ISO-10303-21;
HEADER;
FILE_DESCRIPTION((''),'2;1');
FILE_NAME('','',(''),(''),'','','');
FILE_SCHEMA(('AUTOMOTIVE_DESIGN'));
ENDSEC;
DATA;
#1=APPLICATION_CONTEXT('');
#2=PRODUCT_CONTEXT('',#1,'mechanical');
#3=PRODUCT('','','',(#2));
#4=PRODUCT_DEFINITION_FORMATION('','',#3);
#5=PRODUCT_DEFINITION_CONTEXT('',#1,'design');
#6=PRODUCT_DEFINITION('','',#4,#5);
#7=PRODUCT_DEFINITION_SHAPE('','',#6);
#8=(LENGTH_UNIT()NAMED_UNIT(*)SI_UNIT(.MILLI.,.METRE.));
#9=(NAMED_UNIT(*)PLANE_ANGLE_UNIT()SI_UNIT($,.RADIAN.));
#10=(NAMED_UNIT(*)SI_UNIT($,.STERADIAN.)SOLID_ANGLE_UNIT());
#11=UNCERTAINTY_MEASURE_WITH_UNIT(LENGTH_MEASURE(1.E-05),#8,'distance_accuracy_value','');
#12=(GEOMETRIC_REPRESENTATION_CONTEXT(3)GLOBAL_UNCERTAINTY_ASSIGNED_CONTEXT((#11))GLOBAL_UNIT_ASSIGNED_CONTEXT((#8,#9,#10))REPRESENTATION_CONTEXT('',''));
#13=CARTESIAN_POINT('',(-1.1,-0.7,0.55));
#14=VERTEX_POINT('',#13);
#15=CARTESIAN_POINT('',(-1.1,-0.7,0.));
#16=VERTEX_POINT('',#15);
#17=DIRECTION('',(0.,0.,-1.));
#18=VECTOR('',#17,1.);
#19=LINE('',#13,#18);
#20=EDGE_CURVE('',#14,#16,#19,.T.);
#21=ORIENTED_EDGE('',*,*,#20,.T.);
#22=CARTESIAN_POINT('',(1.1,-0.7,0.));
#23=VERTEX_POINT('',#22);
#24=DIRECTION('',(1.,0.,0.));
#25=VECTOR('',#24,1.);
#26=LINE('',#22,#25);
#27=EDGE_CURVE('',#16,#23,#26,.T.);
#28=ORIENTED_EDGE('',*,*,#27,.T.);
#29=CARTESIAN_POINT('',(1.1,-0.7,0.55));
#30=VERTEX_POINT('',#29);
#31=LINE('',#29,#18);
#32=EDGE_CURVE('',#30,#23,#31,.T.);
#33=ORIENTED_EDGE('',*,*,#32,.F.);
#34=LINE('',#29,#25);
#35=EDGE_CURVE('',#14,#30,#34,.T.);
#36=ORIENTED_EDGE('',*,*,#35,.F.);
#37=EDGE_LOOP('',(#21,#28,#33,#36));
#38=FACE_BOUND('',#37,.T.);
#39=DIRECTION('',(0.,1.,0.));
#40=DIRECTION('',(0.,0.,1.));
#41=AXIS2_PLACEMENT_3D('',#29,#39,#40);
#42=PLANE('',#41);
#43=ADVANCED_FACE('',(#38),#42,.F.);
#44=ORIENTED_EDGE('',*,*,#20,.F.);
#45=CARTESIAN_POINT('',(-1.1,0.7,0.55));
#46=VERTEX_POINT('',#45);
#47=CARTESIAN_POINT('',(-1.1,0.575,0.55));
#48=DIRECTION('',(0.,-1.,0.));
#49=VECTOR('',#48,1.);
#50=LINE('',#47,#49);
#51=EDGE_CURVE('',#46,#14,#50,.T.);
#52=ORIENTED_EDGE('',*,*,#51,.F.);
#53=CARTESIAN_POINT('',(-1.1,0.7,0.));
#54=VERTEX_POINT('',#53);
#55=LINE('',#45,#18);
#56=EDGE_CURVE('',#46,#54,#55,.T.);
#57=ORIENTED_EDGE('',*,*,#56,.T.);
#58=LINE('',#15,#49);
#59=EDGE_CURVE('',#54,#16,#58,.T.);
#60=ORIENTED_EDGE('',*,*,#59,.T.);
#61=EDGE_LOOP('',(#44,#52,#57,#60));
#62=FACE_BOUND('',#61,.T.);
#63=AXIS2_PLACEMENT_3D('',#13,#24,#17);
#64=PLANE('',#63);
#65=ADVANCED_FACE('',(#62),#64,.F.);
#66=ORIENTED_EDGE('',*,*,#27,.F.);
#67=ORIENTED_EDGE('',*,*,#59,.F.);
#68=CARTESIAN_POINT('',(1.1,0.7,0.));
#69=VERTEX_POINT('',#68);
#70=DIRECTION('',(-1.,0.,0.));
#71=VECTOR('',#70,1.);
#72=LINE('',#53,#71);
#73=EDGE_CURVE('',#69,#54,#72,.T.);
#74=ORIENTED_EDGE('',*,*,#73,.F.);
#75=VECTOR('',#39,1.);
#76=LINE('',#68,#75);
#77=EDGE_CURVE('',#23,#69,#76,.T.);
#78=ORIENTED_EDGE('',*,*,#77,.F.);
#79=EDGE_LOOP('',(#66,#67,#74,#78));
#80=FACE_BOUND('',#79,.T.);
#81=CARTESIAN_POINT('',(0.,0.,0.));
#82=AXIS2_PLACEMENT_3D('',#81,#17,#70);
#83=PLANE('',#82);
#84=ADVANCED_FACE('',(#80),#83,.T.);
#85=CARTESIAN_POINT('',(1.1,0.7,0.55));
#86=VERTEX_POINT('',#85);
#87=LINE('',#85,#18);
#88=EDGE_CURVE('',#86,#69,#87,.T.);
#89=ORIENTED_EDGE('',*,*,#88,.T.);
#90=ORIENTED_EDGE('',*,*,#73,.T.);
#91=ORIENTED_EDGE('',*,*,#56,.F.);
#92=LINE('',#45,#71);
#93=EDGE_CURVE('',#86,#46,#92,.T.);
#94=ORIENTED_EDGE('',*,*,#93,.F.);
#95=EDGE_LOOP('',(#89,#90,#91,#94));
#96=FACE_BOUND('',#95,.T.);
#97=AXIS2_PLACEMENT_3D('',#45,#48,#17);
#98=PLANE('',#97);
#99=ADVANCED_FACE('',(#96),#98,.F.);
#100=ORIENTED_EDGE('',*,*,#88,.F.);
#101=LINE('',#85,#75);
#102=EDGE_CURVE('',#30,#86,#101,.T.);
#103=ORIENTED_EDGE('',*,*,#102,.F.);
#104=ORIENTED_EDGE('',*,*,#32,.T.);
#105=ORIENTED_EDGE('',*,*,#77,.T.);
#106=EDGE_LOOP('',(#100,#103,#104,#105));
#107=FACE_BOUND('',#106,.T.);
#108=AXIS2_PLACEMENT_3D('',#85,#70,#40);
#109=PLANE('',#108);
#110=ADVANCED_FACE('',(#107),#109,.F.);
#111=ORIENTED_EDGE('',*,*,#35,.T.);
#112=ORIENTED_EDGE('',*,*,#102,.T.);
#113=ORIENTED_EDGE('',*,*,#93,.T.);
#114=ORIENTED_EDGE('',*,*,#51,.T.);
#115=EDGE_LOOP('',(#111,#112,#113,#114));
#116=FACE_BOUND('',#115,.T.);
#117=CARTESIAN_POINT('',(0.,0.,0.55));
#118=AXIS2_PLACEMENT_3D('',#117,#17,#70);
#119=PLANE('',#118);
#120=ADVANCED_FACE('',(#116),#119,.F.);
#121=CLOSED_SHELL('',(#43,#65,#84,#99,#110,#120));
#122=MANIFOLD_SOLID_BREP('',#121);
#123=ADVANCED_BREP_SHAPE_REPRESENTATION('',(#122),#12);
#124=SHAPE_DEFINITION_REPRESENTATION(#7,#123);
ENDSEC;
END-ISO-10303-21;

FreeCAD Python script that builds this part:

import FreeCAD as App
import Part
import Sketcher


def add_polygon(sketch, points):
    """Adds a closed chain of lines whose ends are joined by coincident constraints."""
    first, n = sketch.GeometryCount, len(points)
    for a, b in zip(points, points[1:] + points[:1]):
        sketch.addGeometry(Part.LineSegment(App.Vector(*a, 0), App.Vector(*b, 0)), False)
    for i in range(n):
        sketch.addConstraint(Sketcher.Constraint("Coincident", first + i, 2, first + (i + 1) % n, 1))

doc = App.newDocument("Part")
body = doc.addObject("PartDesign::Body", "Body")

# Sketch on XY plane
sketch1 = body.newObject("Sketcher::SketchObject", "Sketch")
sketch1.AttachmentSupport = (doc.getObject("XY_Plane"), [""])
sketch1.MapMode = "FlatFace"
add_polygon(sketch1, [(-1.1, 0.7), (-1.1, -0.7), (1.1, -0.7), (1.1, 0.7)])  # lines 0-3
sketch1.addConstraint(Sketcher.Constraint("Vertical", 0))
sketch1.addConstraint(Sketcher.Constraint("Horizontal", 1))
sketch1.addConstraint(Sketcher.Constraint("Vertical", 2))
sketch1.addConstraint(Sketcher.Constraint("Horizontal", 3))
sketch1.addConstraint(Sketcher.Constraint("Symmetric", 0, 2, 2, 2, -1, 1))
sketch1.addConstraint(Sketcher.Constraint("DistanceX", 1, 1, 1, 2, 2.2))
sketch1.addConstraint(Sketcher.Constraint("DistanceY", 0, 2, 0, 1, 1.4))
pad1 = body.newObject("PartDesign::Pad", "Pad")
pad1.Profile = sketch1
pad1.Length = 0.55

doc.recompute()
